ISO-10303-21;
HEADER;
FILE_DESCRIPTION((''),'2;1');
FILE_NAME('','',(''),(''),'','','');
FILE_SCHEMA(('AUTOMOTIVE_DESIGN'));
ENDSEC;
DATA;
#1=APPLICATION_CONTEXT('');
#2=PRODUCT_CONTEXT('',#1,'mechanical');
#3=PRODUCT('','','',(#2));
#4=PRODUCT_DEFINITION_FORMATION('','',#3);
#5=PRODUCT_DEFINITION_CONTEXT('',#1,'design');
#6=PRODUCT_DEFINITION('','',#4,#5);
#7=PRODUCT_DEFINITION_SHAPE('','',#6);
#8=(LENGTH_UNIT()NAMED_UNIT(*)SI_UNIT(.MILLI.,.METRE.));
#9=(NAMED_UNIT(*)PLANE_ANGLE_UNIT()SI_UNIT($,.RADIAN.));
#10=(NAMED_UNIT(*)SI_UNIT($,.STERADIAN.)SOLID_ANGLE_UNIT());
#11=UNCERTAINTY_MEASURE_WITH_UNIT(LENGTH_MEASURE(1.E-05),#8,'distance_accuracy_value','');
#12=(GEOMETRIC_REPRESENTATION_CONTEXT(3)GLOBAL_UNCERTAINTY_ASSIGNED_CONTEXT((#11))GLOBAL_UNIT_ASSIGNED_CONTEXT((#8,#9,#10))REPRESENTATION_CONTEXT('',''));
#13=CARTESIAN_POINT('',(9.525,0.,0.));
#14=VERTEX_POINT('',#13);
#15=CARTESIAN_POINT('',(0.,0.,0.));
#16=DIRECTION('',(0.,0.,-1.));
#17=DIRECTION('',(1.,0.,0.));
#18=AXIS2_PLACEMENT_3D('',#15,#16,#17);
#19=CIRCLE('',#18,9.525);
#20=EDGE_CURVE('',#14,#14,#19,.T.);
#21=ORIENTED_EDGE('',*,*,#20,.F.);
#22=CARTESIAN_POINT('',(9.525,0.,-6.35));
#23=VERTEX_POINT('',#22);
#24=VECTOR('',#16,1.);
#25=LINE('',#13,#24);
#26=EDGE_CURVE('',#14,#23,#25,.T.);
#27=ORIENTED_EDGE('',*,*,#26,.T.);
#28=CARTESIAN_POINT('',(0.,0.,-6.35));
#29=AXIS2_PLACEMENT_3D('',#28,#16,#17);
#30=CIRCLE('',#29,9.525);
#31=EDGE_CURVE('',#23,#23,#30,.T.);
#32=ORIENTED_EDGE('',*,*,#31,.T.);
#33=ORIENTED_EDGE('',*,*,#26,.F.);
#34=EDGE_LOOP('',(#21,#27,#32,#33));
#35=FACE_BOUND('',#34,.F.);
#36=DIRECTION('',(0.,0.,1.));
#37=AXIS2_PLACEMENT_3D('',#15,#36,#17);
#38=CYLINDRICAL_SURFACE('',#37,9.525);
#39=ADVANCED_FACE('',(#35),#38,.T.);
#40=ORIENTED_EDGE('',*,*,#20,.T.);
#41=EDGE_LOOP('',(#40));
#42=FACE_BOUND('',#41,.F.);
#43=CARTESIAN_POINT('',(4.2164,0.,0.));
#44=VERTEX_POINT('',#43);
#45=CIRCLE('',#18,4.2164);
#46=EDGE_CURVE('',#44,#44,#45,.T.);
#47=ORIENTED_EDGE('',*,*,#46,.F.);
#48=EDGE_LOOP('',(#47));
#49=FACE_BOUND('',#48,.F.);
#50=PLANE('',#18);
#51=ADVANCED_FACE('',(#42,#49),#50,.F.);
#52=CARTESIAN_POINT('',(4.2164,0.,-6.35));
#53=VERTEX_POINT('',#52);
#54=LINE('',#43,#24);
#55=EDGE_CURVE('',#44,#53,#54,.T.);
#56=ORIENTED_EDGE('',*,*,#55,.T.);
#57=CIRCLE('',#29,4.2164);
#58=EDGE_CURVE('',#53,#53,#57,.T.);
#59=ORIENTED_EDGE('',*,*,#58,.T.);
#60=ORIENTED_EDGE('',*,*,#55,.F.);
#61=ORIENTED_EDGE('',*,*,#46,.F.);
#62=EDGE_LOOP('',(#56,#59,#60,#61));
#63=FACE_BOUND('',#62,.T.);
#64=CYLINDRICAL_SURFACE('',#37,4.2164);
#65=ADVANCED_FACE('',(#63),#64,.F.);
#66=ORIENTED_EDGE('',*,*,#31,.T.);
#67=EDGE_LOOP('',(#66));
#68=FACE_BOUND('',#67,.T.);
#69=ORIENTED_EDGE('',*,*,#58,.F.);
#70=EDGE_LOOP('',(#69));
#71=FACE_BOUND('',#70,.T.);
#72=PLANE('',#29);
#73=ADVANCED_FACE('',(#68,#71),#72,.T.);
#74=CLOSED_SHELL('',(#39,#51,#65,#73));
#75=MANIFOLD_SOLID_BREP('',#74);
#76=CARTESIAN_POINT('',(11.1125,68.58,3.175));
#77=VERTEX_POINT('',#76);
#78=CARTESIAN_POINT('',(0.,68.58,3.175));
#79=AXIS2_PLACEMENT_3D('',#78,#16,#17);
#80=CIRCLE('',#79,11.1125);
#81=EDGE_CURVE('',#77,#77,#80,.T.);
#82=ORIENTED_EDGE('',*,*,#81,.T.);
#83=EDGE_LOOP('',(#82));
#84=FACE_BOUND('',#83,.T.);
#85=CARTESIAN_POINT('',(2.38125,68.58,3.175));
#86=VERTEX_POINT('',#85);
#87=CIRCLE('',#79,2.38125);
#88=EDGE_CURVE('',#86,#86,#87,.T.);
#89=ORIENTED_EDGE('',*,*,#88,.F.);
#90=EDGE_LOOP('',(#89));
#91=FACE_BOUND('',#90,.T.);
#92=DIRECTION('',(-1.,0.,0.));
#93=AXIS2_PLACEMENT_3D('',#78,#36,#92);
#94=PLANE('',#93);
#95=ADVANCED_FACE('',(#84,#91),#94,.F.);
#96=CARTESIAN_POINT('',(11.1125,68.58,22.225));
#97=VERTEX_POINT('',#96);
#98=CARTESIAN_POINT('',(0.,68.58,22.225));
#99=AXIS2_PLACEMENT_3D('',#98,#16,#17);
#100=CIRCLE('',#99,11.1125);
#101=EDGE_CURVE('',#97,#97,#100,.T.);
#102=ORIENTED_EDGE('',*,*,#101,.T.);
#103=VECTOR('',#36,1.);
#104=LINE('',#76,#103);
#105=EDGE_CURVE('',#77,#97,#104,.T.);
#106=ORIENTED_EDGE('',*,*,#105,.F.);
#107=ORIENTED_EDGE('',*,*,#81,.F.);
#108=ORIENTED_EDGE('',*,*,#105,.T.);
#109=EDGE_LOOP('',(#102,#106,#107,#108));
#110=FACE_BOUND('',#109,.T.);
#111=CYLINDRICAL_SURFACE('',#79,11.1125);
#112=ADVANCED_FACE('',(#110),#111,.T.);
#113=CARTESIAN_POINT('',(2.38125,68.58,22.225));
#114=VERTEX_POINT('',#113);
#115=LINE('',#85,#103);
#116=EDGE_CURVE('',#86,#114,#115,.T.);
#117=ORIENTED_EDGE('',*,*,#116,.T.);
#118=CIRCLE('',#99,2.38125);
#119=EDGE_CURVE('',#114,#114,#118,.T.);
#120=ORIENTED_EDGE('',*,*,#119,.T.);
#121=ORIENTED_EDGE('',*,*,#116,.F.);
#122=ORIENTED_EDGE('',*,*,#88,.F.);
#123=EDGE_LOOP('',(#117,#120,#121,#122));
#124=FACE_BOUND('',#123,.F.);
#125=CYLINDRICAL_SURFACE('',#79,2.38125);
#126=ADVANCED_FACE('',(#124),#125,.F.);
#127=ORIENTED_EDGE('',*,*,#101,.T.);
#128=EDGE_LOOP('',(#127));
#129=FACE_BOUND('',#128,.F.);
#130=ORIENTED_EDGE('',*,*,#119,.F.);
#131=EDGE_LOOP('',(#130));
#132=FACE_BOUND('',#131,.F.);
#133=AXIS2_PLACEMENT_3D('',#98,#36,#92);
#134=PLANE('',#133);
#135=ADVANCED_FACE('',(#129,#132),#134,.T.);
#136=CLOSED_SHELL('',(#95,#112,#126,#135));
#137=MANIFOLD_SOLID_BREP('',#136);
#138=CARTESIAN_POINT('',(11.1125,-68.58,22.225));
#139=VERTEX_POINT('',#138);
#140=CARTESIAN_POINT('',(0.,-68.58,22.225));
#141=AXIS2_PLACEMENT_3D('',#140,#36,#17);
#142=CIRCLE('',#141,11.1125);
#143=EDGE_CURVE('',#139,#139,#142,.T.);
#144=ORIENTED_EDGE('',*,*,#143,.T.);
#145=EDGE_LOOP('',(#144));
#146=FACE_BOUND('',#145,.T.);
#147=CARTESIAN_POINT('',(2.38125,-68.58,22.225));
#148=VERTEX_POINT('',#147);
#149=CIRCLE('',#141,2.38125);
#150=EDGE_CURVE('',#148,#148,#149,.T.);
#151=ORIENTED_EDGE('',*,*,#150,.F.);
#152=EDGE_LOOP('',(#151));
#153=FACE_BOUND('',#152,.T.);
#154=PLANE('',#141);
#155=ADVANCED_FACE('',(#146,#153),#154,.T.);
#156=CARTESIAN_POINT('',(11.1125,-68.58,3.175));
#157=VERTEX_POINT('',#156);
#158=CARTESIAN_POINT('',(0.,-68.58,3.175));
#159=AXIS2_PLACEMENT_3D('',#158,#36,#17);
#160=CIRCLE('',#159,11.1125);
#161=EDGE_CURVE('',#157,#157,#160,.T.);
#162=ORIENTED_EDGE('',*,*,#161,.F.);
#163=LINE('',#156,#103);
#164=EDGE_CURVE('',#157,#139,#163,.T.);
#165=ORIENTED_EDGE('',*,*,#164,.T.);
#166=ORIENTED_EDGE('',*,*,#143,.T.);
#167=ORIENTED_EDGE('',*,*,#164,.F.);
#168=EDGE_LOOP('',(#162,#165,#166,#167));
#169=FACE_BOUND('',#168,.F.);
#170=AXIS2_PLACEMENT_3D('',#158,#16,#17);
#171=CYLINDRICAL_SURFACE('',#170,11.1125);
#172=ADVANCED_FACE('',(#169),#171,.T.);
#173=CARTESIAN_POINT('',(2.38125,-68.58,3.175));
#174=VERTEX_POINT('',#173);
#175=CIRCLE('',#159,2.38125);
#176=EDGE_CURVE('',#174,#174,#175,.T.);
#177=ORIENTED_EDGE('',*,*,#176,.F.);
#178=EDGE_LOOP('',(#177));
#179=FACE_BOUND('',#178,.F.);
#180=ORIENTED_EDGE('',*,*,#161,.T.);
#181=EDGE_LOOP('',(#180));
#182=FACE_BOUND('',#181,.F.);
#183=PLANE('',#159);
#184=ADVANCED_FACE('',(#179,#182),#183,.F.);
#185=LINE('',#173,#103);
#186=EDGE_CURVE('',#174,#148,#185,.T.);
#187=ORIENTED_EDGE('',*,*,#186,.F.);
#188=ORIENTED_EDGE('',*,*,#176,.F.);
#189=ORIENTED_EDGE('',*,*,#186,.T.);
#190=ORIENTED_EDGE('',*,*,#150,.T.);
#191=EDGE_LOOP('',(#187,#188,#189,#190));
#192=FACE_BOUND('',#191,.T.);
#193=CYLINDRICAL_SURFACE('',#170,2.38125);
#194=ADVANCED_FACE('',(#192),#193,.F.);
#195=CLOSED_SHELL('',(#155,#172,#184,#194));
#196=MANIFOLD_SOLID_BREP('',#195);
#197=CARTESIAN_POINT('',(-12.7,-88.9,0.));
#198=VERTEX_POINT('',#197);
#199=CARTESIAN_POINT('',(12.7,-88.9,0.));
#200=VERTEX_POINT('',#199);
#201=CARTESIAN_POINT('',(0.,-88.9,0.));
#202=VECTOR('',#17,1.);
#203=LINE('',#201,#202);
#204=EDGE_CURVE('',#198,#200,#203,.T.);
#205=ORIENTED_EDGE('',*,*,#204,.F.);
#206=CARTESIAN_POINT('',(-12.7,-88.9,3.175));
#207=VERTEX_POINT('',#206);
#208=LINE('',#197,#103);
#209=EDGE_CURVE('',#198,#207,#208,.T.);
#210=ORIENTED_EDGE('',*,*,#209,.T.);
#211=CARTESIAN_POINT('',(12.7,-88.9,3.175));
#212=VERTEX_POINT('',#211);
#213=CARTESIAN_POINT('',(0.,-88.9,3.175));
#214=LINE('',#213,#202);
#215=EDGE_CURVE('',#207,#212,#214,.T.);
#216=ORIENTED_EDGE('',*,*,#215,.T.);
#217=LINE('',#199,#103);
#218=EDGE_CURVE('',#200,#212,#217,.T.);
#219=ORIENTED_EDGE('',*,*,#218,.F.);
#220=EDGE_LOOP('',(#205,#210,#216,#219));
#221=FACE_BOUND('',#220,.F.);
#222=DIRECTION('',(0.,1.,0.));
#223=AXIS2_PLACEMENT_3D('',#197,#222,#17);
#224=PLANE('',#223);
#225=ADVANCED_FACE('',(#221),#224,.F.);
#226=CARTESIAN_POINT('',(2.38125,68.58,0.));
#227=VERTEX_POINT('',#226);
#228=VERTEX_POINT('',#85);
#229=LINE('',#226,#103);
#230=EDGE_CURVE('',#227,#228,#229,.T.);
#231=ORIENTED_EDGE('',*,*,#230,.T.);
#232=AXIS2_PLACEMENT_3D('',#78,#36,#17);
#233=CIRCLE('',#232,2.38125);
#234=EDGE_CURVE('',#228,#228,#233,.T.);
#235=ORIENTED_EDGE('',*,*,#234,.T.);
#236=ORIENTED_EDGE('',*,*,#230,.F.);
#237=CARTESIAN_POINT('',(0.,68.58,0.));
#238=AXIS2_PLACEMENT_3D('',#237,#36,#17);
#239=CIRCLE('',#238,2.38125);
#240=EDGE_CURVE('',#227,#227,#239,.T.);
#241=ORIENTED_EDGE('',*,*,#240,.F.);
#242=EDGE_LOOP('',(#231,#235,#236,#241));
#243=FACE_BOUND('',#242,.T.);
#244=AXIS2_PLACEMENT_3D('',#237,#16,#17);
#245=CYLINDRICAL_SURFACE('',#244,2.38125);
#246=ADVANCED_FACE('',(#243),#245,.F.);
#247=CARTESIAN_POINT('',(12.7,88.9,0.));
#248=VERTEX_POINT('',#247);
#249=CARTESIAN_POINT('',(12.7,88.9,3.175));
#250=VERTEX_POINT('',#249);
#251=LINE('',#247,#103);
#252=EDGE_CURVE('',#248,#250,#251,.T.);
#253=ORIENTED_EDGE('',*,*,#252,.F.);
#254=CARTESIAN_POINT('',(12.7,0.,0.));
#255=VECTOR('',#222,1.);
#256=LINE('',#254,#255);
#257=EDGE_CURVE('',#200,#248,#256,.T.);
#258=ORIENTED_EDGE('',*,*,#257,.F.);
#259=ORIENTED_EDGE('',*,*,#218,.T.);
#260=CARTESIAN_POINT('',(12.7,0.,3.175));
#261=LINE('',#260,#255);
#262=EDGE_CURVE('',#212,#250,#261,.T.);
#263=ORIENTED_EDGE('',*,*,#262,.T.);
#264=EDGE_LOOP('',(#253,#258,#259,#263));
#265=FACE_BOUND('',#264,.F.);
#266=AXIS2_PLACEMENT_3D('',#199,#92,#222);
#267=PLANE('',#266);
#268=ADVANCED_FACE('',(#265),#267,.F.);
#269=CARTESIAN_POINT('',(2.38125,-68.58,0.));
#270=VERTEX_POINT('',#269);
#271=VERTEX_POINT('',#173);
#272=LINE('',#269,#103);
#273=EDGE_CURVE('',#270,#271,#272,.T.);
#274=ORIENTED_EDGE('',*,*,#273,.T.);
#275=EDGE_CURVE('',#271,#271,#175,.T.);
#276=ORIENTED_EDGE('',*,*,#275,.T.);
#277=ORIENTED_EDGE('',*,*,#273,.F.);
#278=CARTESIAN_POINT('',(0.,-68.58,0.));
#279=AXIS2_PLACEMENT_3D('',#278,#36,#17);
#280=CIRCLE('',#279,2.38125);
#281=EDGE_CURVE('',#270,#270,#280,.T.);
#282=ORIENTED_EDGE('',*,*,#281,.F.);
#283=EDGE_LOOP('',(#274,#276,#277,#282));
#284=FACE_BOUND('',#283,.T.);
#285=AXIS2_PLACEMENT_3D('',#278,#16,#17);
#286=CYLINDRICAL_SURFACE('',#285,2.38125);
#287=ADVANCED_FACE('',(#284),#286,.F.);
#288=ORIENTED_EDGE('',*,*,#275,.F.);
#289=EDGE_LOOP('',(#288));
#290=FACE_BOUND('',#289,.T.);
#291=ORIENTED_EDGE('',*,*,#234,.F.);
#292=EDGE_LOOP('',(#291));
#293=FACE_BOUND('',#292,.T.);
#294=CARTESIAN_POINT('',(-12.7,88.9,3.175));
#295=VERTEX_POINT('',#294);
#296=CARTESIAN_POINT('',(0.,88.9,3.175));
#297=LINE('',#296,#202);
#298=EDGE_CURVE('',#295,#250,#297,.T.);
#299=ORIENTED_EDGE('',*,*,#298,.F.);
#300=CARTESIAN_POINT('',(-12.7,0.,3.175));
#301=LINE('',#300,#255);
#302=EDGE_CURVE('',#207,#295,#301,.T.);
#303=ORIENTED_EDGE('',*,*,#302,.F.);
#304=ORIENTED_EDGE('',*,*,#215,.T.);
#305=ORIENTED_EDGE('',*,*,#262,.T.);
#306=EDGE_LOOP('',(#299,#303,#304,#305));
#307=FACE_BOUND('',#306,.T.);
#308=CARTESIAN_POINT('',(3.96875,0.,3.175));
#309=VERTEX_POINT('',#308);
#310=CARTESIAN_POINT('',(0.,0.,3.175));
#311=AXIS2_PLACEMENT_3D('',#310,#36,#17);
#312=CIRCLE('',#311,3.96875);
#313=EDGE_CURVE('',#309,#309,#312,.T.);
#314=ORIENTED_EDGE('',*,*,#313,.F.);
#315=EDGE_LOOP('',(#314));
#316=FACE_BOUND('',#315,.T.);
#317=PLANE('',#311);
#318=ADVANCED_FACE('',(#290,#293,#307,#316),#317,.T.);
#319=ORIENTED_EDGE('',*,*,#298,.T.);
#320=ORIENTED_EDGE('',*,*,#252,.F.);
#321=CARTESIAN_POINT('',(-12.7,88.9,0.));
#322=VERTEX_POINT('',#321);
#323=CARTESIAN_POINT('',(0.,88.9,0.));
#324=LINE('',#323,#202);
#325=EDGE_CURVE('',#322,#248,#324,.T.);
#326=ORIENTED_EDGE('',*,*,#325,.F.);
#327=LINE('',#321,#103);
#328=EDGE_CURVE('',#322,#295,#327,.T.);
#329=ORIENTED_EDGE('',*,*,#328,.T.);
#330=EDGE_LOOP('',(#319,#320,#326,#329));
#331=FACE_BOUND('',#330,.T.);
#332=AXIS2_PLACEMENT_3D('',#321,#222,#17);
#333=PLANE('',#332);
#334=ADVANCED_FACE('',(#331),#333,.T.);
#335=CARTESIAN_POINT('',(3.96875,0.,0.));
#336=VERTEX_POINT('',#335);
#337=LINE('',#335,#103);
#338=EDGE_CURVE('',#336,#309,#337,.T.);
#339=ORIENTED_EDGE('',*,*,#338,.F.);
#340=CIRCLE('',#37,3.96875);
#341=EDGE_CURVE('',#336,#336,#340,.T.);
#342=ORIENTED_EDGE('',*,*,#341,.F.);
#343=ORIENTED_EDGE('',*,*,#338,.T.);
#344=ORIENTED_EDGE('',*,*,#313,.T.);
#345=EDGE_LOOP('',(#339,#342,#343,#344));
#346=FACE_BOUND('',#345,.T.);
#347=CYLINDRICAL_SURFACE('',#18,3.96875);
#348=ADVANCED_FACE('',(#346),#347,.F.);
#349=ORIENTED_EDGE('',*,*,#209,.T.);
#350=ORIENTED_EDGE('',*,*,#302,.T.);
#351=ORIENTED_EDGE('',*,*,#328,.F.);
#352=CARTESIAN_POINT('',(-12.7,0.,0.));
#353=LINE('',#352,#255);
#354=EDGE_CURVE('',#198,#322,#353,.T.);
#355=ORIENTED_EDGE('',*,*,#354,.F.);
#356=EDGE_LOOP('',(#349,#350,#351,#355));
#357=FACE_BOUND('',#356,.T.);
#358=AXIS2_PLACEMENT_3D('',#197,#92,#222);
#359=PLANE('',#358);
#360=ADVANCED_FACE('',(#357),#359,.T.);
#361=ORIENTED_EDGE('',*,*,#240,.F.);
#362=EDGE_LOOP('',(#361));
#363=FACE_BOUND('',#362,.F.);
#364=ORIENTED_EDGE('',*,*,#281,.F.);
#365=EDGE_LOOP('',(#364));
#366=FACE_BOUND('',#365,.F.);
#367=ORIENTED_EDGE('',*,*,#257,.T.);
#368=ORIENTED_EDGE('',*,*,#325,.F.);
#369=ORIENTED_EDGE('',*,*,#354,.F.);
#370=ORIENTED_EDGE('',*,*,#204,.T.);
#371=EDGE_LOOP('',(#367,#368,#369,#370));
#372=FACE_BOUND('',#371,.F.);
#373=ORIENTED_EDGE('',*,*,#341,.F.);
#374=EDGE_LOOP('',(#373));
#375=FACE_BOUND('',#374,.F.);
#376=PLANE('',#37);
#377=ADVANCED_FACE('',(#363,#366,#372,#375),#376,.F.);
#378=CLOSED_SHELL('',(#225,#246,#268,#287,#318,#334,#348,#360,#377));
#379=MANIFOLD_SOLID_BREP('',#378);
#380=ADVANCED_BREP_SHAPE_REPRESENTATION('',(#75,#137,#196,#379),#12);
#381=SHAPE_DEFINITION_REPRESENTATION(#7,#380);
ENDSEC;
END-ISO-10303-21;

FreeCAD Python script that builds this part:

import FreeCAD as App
import Part
import Sketcher

V = App.Vector
Q = App.Units.Quantity

doc = App.newDocument("Part")
body = doc.addObject("PartDesign::Body", "Body")

# Sketch on XY plane
sketch1 = body.newObject("Sketcher::SketchObject", "Sketch")
sketch1.AttachmentSupport = (doc.getObject("XY_Plane"), [""])
sketch1.MapMode = "FlatFace"
sketch1.addGeometry([
    Part.LineSegment(V(-12.7, 88.9, 0), V(-12.7, -88.9, 0)),  # 0
    Part.LineSegment(V(-12.7, -88.9, 0), V(12.7, -88.9, 0)),  # 1
    Part.LineSegment(V(12.7, -88.9, 0), V(12.7, 88.9, 0)),  # 2
    Part.LineSegment(V(12.7, 88.9, 0), V(-12.7, 88.9, 0)),  # 3
    Part.Circle(V(0, -68.6, 0), V(0, 0, 1), 2.4),  # 4
    Part.Circle(V(0, 0, 0), V(0, 0, 1), 4),  # 5
    Part.Circle(V(0, 68.6, 0), V(0, 0, 1), 2.4),  # 6
], False)
sketch1.addConstraint([
    Sketcher.Constraint("Coincident", 0, 2, 1, 1),
    Sketcher.Constraint("Coincident", 1, 2, 2, 1),
    Sketcher.Constraint("Coincident", 2, 2, 3, 1),
    Sketcher.Constraint("Coincident", 3, 2, 0, 1),
    Sketcher.Constraint("Vertical", 0),
    Sketcher.Constraint("Horizontal", 1),
    Sketcher.Constraint("Vertical", 2),
    Sketcher.Constraint("Horizontal", 3),
    Sketcher.Constraint("Coincident", 5, 3, -1, 1),
    Sketcher.Constraint("Equal", 4, 6),
    Sketcher.Constraint("Symmetric", 4, 3, 6, 3, -1, 1),
    Sketcher.Constraint("Symmetric", 0, 2, 2, 2, -1, 1),
    Sketcher.Constraint("PointOnObject", 4, 3, -2),
    Sketcher.Constraint("DistanceX", 1, 1, 1, 2, Q("1 in")),
    Sketcher.Constraint("DistanceY", 0, 2, 0, 1, Q("7 in")),
    Sketcher.Constraint("Diameter", 4, Q("0.1875 in")),
    Sketcher.Constraint("Diameter", 5, Q("0.3125 in")),
    Sketcher.Constraint("DistanceY", 4, 3, -1, 1, Q("2.7 in")),
])
pad1 = body.newObject("PartDesign::Pad", "Pad")
pad1.Profile = sketch1
pad1.Length = Q("0.125 in")
body2 = doc.addObject("PartDesign::Body", "Body001")

# Sketch on XY plane
sketch2 = body2.newObject("Sketcher::SketchObject", "Sketch001")
sketch2.AttachmentSupport = (doc.getObject("XY_Plane001"), [""])
sketch2.MapMode = "FlatFace"
sketch2.addGeometry([
    Part.Circle(V(0, 0, 0), V(0, 0, 1), 9.5),
    Part.Circle(V(0, 0, 0), V(0, 0, 1), 4.2),
], False)
sketch2.addConstraint([
    Sketcher.Constraint("Coincident", 0, 3, -1, 1),
    Sketcher.Constraint("Coincident", 1, 3, -1, 1),
    Sketcher.Constraint("Diameter", 0, Q("0.75 in")),
    Sketcher.Constraint("Diameter", 1, Q("0.332 in")),
])
pad2 = body2.newObject("PartDesign::Pad", "Pad001")
pad2.Profile = sketch2
pad2.Length = Q("0.25 in")
pad2.Reversed = True
body3 = doc.addObject("PartDesign::Body", "Body002")

# Sketch on XY plane
sketch3 = body3.newObject("Sketcher::SketchObject", "Sketch002")
sketch3.AttachmentSupport = (doc.getObject("XY_Plane002"), [""])
sketch3.MapMode = "FlatFace"
sketch3.AttachmentOffset = App.Placement(V(0, 0, 0.125 * 25.4), App.Rotation())
sketch3.addGeometry([
    Part.Circle(V(0, -68.6, 0), V(0, 0, 1), 11.1),
    Part.Circle(V(0, -68.6, 0), V(0, 0, 1), 2.4),
], False)
sketch3.addConstraint([
    Sketcher.Constraint("Coincident", 1, 3, 0, 3),
    Sketcher.Constraint("PointOnObject", 0, 3, -2),
    Sketcher.Constraint("Diameter", 0, Q("0.875 in")),
    Sketcher.Constraint("Diameter", 1, Q("0.1875 in")),
    Sketcher.Constraint("DistanceY", 0, 3, -1, 1, Q("2.7 in")),
])
pad3 = body3.newObject("PartDesign::Pad", "Pad002")
pad3.Profile = sketch3
pad3.Length = Q("0.75 in")
body4 = doc.addObject("PartDesign::Body", "Body003")
doc.recompute()

mirroring = doc.addObject("Part::Mirroring", "Mirroring")
mirroring.Source = body3
mirroring.Base = V(0, 0, 0)
mirroring.Normal = V(0, -1, 0)
body4.BaseFeature = mirroring
doc.recompute()
mirroring.Visibility = False

doc.recompute()
